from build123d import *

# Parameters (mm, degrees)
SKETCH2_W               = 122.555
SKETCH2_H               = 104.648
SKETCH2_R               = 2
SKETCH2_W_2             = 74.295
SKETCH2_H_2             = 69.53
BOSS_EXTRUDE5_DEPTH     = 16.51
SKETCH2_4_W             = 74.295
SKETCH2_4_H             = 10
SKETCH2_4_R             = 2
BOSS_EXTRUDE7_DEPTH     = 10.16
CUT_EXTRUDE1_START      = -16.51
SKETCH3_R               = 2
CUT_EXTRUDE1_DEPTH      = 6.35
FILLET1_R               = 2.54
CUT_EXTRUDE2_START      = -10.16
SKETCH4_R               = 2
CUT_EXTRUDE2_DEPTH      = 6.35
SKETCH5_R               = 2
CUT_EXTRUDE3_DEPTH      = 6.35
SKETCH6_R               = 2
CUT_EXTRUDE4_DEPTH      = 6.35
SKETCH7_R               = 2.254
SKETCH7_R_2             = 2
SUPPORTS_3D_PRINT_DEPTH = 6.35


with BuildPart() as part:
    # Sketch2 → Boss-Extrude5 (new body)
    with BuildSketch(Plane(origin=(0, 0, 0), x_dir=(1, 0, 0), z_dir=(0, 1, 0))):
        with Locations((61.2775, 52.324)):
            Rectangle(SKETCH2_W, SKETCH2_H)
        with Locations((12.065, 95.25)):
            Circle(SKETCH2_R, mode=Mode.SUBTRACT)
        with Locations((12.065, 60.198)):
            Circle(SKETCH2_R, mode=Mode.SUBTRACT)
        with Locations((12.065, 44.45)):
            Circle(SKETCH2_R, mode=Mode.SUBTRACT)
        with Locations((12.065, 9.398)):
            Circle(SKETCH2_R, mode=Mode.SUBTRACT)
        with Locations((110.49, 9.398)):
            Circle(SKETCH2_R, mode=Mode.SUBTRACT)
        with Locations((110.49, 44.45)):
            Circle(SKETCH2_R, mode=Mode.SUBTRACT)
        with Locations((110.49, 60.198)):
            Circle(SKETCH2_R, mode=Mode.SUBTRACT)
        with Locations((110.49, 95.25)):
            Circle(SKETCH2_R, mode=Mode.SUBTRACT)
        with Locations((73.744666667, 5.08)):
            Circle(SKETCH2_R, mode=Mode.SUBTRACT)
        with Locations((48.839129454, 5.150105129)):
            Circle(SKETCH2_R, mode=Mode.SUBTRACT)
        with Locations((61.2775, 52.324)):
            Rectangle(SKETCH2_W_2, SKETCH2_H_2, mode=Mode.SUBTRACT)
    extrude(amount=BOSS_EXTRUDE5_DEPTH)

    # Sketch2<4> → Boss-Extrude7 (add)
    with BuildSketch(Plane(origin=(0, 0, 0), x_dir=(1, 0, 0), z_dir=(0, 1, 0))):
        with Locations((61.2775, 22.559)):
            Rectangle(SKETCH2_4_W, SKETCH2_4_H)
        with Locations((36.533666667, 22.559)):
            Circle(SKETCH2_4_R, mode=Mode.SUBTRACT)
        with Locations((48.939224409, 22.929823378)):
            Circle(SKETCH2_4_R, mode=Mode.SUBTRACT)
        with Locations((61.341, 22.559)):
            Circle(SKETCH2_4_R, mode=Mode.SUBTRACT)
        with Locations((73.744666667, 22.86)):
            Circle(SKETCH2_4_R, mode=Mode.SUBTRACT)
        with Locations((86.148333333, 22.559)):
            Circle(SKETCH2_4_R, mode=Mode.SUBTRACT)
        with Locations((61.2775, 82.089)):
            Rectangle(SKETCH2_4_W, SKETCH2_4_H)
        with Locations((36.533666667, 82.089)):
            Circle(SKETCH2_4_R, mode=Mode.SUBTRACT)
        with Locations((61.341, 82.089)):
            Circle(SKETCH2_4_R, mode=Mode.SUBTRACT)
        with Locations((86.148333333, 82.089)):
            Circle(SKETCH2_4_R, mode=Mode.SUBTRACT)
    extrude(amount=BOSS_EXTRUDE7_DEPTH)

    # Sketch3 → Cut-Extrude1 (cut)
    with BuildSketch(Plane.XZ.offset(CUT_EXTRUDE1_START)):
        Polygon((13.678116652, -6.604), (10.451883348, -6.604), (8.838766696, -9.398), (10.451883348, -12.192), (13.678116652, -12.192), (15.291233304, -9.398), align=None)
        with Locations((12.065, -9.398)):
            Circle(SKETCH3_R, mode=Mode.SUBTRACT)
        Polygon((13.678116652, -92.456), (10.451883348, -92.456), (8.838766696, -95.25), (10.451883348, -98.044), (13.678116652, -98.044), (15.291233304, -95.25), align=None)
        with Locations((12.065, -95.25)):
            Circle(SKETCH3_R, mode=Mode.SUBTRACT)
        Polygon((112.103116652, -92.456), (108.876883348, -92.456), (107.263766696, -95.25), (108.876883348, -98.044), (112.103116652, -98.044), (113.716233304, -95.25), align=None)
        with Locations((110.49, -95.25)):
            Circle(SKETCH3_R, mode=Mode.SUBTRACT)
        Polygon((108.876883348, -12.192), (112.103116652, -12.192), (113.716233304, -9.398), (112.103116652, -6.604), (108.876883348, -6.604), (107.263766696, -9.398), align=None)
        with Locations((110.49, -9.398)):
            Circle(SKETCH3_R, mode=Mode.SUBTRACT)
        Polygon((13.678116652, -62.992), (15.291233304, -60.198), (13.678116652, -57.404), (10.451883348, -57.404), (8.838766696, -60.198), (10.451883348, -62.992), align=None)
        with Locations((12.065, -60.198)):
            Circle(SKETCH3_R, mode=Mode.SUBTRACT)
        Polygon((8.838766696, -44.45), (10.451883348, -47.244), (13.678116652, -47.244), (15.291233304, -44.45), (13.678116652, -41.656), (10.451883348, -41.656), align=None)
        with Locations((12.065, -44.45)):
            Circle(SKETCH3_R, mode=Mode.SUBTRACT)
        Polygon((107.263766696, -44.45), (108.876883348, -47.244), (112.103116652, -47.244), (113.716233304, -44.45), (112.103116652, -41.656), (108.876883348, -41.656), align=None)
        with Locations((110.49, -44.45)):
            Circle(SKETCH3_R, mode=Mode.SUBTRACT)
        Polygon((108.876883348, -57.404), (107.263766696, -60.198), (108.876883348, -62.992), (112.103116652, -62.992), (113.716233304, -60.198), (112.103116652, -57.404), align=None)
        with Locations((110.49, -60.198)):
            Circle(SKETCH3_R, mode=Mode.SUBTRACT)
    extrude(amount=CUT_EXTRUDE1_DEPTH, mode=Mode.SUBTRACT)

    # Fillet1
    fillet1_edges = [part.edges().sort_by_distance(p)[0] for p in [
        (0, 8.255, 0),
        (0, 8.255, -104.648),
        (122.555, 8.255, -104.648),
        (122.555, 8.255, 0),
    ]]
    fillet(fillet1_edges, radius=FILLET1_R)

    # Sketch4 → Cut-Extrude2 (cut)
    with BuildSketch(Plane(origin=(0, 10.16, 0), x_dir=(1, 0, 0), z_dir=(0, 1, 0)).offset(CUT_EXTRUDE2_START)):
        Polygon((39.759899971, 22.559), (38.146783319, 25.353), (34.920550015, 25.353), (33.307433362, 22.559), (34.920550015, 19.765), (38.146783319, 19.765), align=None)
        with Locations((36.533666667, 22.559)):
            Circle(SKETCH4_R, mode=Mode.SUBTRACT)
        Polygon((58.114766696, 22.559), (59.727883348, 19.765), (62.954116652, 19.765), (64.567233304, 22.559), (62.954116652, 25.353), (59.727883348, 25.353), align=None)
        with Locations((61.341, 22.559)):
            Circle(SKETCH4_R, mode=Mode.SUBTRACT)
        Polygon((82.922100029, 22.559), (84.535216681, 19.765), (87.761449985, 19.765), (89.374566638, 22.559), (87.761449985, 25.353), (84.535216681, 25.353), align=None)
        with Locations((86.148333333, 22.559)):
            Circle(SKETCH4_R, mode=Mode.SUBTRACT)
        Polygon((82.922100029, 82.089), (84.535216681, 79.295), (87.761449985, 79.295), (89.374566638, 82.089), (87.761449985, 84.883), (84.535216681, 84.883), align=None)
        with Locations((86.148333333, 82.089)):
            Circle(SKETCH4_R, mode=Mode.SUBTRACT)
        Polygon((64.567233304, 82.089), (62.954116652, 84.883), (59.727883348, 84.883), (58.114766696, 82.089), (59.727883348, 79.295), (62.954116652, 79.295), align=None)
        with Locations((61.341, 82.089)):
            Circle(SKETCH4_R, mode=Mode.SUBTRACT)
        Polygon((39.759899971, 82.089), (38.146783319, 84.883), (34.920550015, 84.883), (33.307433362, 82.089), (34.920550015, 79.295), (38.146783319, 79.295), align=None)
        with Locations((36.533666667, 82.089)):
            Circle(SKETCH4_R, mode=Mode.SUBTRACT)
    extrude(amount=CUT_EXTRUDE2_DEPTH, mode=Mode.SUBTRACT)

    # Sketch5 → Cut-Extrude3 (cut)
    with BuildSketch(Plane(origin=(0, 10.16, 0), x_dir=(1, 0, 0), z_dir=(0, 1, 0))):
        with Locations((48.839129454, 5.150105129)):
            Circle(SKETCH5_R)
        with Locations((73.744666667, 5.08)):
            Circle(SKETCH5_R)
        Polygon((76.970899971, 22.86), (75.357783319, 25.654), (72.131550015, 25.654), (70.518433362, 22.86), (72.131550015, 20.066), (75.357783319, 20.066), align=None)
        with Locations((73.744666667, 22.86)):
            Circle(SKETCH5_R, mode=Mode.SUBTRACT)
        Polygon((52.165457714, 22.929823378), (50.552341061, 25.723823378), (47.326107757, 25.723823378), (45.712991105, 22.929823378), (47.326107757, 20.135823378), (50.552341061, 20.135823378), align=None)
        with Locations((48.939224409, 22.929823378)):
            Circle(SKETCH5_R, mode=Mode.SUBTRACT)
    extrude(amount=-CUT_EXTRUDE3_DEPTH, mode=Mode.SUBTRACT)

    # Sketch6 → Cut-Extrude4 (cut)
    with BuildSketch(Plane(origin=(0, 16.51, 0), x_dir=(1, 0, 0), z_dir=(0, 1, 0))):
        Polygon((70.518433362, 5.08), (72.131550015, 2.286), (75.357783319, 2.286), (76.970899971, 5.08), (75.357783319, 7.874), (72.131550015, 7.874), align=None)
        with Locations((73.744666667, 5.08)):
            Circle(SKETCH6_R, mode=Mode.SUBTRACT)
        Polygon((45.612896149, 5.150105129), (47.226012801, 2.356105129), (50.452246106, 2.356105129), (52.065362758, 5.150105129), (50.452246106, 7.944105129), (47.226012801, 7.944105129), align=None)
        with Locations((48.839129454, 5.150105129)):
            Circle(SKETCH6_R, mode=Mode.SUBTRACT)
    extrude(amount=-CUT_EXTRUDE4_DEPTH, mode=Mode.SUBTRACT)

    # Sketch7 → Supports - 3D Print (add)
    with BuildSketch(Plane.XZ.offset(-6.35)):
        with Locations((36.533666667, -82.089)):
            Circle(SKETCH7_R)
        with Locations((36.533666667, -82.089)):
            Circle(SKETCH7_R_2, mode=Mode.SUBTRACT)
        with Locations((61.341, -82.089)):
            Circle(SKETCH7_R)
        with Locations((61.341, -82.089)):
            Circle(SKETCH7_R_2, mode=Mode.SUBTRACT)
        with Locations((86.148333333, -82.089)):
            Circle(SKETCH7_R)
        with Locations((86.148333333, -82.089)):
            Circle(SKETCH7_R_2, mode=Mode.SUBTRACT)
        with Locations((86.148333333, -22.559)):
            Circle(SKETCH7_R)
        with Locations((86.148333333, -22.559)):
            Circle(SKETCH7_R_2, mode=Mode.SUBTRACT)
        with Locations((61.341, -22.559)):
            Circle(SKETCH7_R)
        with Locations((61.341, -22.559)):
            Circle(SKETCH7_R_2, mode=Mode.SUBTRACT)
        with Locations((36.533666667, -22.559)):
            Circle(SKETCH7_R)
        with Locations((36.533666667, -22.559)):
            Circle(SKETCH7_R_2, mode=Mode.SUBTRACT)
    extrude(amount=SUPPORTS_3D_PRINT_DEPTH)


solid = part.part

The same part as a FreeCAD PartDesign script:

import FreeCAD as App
import Part
import Sketcher
Q = App.Units.Quantity


def edges_at(feature, points):
    """Names of the edges that pass closest to the given points."""
    edges = feature.Shape.Edges
    near = lambda p: min(range(len(edges)), key=lambda i: edges[i].distToShape(Part.Vertex(*p))[0])
    return sorted({f"Edge{near(p) + 1}" for p in points})


def add_polygon(sketch, points):
    """Adds a closed chain of lines whose ends are joined by coincident constraints."""
    first, n = sketch.GeometryCount, len(points)
    for a, b in zip(points, points[1:] + points[:1]):
        sketch.addGeometry(Part.LineSegment(App.Vector(*a, 0), App.Vector(*b, 0)), False)
    for i in range(n):
        sketch.addConstraint(Sketcher.Constraint("Coincident", first + i, 2, first + (i + 1) % n, 1))

doc = App.newDocument("Part")
params = doc.addObject("Spreadsheet::Sheet", "Params")
for row, (alias, value) in enumerate([
    ("sketch1_height", "4.12 in"),
    ("sketch1_width", "4.825 in"),
    ("sketch1_width2", "2.925 in"),
    ("pad1_length", "0.65 in"),
    ("sketch2_width", "2.925 in"),
    ("pad2_length", "0.4 in"),
    ("pocket1_length", "0.25 in"),
    ("fillet_radius", "0.1 in"),
    ("pocket2_length", "0.25 in"),
    ("pocket3_length", "0.25 in"),
    ("pocket4_length", "0.25 in"),
    ("pad3_length", "0.25 in"),
], start=1):
    params.set(f"A{row}", alias)
    params.set(f"B{row}", "=" + value)
    params.setAlias(f"B{row}", alias)

body = doc.addObject("PartDesign::Body", "Body")

sketch1 = doc.addObject("Sketcher::SketchObject", "Sketch")
body.addObject(sketch1)
sketch1.AttachmentSupport = (doc.XZ_Plane, [""])
sketch1.MapMode = "FlatFace"
add_polygon(sketch1, [(0, -104.6), (0, 0), (122.6, 0), (122.6, -104.6)])
sketch1.addGeometry(Part.Circle(App.Vector(12.1, -9.4, 0), App.Vector(0, 0, 1), 2), False)
sketch1.addGeometry(Part.Circle(App.Vector(48.8, -5.2, 0), App.Vector(0, 0, 1), 2), False)
sketch1.addGeometry(Part.Circle(App.Vector(12.1, -44.5, 0), App.Vector(0, 0, 1), 2), False)
sketch1.addGeometry(Part.Circle(App.Vector(73.7, -5.1, 0), App.Vector(0, 0, 1), 2), False)
sketch1.addGeometry(Part.Circle(App.Vector(110.5, -9.4, 0), App.Vector(0, 0, 1), 2), False)
sketch1.addGeometry(Part.Circle(App.Vector(110.5, -44.5, 0), App.Vector(0, 0, 1), 2), False)
sketch1.addGeometry(Part.Circle(App.Vector(12.1, -60.2, 0), App.Vector(0, 0, 1), 2), False)
sketch1.addGeometry(Part.Circle(App.Vector(12.1, -95.2, 0), App.Vector(0, 0, 1), 2), False)
add_polygon(sketch1, [(98.4, -17.6), (24.1, -17.6), (24.1, -87.1), (98.4, -87.1)])
sketch1.addGeometry(Part.Circle(App.Vector(110.5, -60.2, 0), App.Vector(0, 0, 1), 2), False)
sketch1.addGeometry(Part.Circle(App.Vector(110.5, -95.2, 0), App.Vector(0, 0, 1), 2), False)
sketch1.addConstraint([
    Sketcher.Constraint("Vertical", 0),
    Sketcher.Constraint("Horizontal", 1),
    Sketcher.Constraint("Vertical", 2),
    Sketcher.Constraint("Horizontal", 3),
    Sketcher.Constraint("Horizontal", 12),
    Sketcher.Constraint("Vertical", 13),
    Sketcher.Constraint("Horizontal", 14),
    Sketcher.Constraint("Vertical", 15),
    Sketcher.Constraint("Coincident", 0, 2, -1, 1),
    Sketcher.Constraint("Equal", 4, 5),
    Sketcher.Constraint("Equal", 5, 6),
    Sketcher.Constraint("Equal", 6, 7),
    Sketcher.Constraint("Equal", 7, 8),
    Sketcher.Constraint("Equal", 8, 9),
    Sketcher.Constraint("Equal", 9, 10),
    Sketcher.Constraint("Equal", 10, 11),
    Sketcher.Constraint("Equal", 11, 16),
    Sketcher.Constraint("Equal", 16, 17),
    Sketcher.Constraint("Horizontal", 4, 3, 8, 3),
    Sketcher.Constraint("Horizontal", 6, 3, 9, 3),
    Sketcher.Constraint("Horizontal", 10, 3, 16, 3),
    Sketcher.Constraint("Horizontal", 11, 3, 17, 3),
    Sketcher.Constraint("Vertical", 4, 3, 6, 3),
    Sketcher.Constraint("Vertical", 8, 3, 9, 3),
    Sketcher.Constraint("Vertical", 6, 3, 10, 3),
    Sketcher.Constraint("Vertical", 10, 3, 11, 3),
    Sketcher.Constraint("Vertical", 9, 3, 16, 3),
    Sketcher.Constraint("Vertical", 16, 3, 17, 3),
    Sketcher.Constraint("DistanceY", 10, 3, 4, 3, Q("2 in")),
    Sketcher.Constraint("DistanceY", 11, 3, 6, 3, Q("2 in")),
    Sketcher.Constraint("DistanceY", 0, 1, 0, 2, Q("4.12 in")),
    Sketcher.Constraint("DistanceY", 7, 3, -1, 1, Q("0.2 in")),
    Sketcher.Constraint("Diameter", 4, 4.0),
    Sketcher.Constraint("DistanceX", 1, 1, 1, 2, Q("4.825 in")),
    Sketcher.Constraint("DistanceX", 12, 2, 12, 1, Q("2.925 in")),
    Sketcher.Constraint("DistanceY", 4, 3, -1, 1, Q("0.37 in")),
    Sketcher.Constraint("DistanceY", 6, 3, -1, 1, Q("1.75 in")),
    Sketcher.Constraint("DistanceX", -1, 1, 8, 3, Q("4.35 in")),
    Sketcher.Constraint("DistanceX", -1, 1, 12, 2, Q("0.95 in")),
    Sketcher.Constraint("DistanceX", -1, 1, 4, 3, Q("0.475 in")),
    Sketcher.Constraint("DistanceY", 13, 2, 13, 1, 69.53),
    Sketcher.Constraint("DistanceY", 12, 2, -1, 1, 17.559),
    Sketcher.Constraint("DistanceX", -1, 1, 5, 3, 48.839129),
    Sketcher.Constraint("DistanceY", 5, 3, -1, 1, 5.150105),
    Sketcher.Constraint("DistanceX", -1, 1, 7, 3, 73.744667),
])
sketch1.setExpression("Constraints[38]", "Params.sketch1_height")
sketch1.setExpression("Constraints[41]", "Params.sketch1_width")
sketch1.setExpression("Constraints[42]", "Params.sketch1_width2")
pad1 = doc.addObject("PartDesign::Pad", "Pad")
body.addObject(pad1)
pad1.Profile = sketch1
pad1.setExpression("Length", "Params.pad1_length")
pad1.Reversed = True

sketch2 = doc.addObject("Sketcher::SketchObject", "Sketch001")
body.addObject(sketch2)
sketch2.AttachmentSupport = (doc.XZ_Plane, [""])
sketch2.MapMode = "FlatFace"
add_polygon(sketch2, [(24.1, -27.6), (24.1, -17.6), (98.4, -17.6), (98.4, -27.6)])
sketch2.addGeometry(Part.Circle(App.Vector(36.5, -22.6, 0), App.Vector(0, 0, 1), 2), False)
sketch2.addGeometry(Part.Circle(App.Vector(61.3, -22.6, 0), App.Vector(0, 0, 1), 2), False)
sketch2.addGeometry(Part.Circle(App.Vector(86.1, -22.6, 0), App.Vector(0, 0, 1), 2), False)
sketch2.addGeometry(Part.Circle(App.Vector(48.9, -22.9, 0), App.Vector(0, 0, 1), 2), False)
sketch2.addGeometry(Part.Circle(App.Vector(73.7, -22.9, 0), App.Vector(0, 0, 1), 2), False)
add_polygon(sketch2, [(24.1, -87.1), (24.1, -77.1), (98.4, -77.1), (98.4, -87.1)])
sketch2.addGeometry(Part.Circle(App.Vector(36.5, -82.1, 0), App.Vector(0, 0, 1), 2), False)
sketch2.addGeometry(Part.Circle(App.Vector(61.3, -82.1, 0), App.Vector(0, 0, 1), 2), False)
sketch2.addGeometry(Part.Circle(App.Vector(86.1, -82.1, 0), App.Vector(0, 0, 1), 2), False)
sketch2.addConstraint([
    Sketcher.Constraint("Vertical", 0),
    Sketcher.Constraint("Horizontal", 1),
    Sketcher.Constraint("Vertical", 2),
    Sketcher.Constraint("Horizontal", 3),
    Sketcher.Constraint("Vertical", 9),
    Sketcher.Constraint("Horizontal", 10),
    Sketcher.Constraint("Vertical", 11),
    Sketcher.Constraint("Horizontal", 12),
    Sketcher.Constraint("Equal", 4, 5),
    Sketcher.Constraint("Equal", 5, 6),
    Sketcher.Constraint("Equal", 6, 7),
    Sketcher.Constraint("Equal", 7, 8),
    Sketcher.Constraint("Equal", 8, 13),
    Sketcher.Constraint("Equal", 13, 14),
    Sketcher.Constraint("Equal", 14, 15),
    Sketcher.Constraint("Horizontal", 4, 3, 5, 3),
    Sketcher.Constraint("Horizontal", 5, 3, 6, 3),
    Sketcher.Constraint("Horizontal", 13, 3, 14, 3),
    Sketcher.Constraint("Horizontal", 14, 3, 15, 3),
    Sketcher.Constraint("Vertical", 4, 3, 13, 3),
    Sketcher.Constraint("Vertical", 5, 3, 14, 3),
    Sketcher.Constraint("Vertical", 6, 3, 15, 3),
    Sketcher.Constraint("Vertical", 3, 2, 9, 2),
    Sketcher.Constraint("Vertical", 2, 2, 10, 2),
    Sketcher.Constraint("Equal", 2, 9),
    Sketcher.Constraint("DistanceY", 8, 3, -1, 1, Q("0.9 in")),
    Sketcher.Constraint("Diameter", 4, 4.0),
    Sketcher.Constraint("DistanceX", 1, 1, 1, 2, Q("2.925 in")),
    Sketcher.Constraint("DistanceX", -1, 1, 0, 2, Q("0.95 in")),
    Sketcher.Constraint("DistanceX", 5, 3, 1, 2, Q("1.46 in")),
    Sketcher.Constraint("DistanceY", 9, 2, 3, 2, Q("1.95 in")),
    Sketcher.Constraint("DistanceY", 2, 2, -1, 1, Q("1.085 in")),
    Sketcher.Constraint("DistanceX", 4, 3, 8, 3, Q("1.465 in")),
    Sketcher.Constraint("DistanceY", 0, 1, 0, 2, 10.0),
    Sketcher.Constraint("DistanceY", 4, 3, -1, 1, 22.559),
    Sketcher.Constraint("DistanceY", 13, 3, -1, 1, 82.089),
    Sketcher.Constraint("DistanceX", 7, 3, 6, 3, 37.209109),
    Sketcher.Constraint("DistanceX", -1, 1, 4, 3, 36.533667),
    Sketcher.Constraint("DistanceX", -1, 1, 6, 3, 86.148333),
    Sketcher.Constraint("DistanceY", 7, 3, -1, 1, 22.929823),
])
sketch2.setExpression("Constraints[35]", "Params.sketch2_width")
pad2 = doc.addObject("PartDesign::Pad", "Pad001")
body.addObject(pad2)
pad2.Profile = sketch2
pad2.setExpression("Length", "Params.pad2_length")
pad2.Reversed = True

sketch3 = doc.addObject("Sketcher::SketchObject", "Sketch002")
body.addObject(sketch3)
sketch3.AttachmentSupport = (doc.XZ_Plane, [""])
sketch3.MapMode = "FlatFace"
sketch3.AttachmentOffset = App.Placement(App.Vector(0, 0, -0.65 * 25.4), App.Rotation())
add_polygon(sketch3, [(13.7, -6.6), (10.5, -6.6), (8.8, -9.4), (10.5, -12.2), (13.7, -12.2), (15.3, -9.4)])
sketch3.addGeometry(Part.Circle(App.Vector(12.1, -9.4, 0), App.Vector(0, 0, 1), 2), False)
add_polygon(sketch3, [(13.7, -92.5), (10.5, -92.5), (8.8, -95.2), (10.5, -98), (13.7, -98), (15.3, -95.2)])
sketch3.addGeometry(Part.Circle(App.Vector(12.1, -95.2, 0), App.Vector(0, 0, 1), 2), False)
add_polygon(sketch3, [(112.1, -92.5), (108.9, -92.5), (107.3, -95.2), (108.9, -98), (112.1, -98), (113.7, -95.2)])
sketch3.addGeometry(Part.Circle(App.Vector(110.5, -95.2, 0), App.Vector(0, 0, 1), 2), False)
add_polygon(sketch3, [(108.9, -12.2), (112.1, -12.2), (113.7, -9.4), (112.1, -6.6), (108.9, -6.6), (107.3, -9.4)])
sketch3.addGeometry(Part.Circle(App.Vector(110.5, -9.4, 0), App.Vector(0, 0, 1), 2), False)
add_polygon(sketch3, [(13.7, -63), (15.3, -60.2), (13.7, -57.4), (10.5, -57.4), (8.8, -60.2), (10.5, -63)])
sketch3.addGeometry(Part.Circle(App.Vector(12.1, -60.2, 0), App.Vector(0, 0, 1), 2), False)
add_polygon(sketch3, [(8.8, -44.5), (10.5, -47.2), (13.7, -47.2), (15.3, -44.5), (13.7, -41.7), (10.5, -41.7)])
sketch3.addGeometry(Part.Circle(App.Vector(12.1, -44.5, 0), App.Vector(0, 0, 1), 2), False)
add_polygon(sketch3, [(107.3, -44.5), (108.9, -47.2), (112.1, -47.2), (113.7, -44.5), (112.1, -41.7), (108.9, -41.7)])
sketch3.addGeometry(Part.Circle(App.Vector(110.5, -44.5, 0), App.Vector(0, 0, 1), 2), False)
add_polygon(sketch3, [(108.9, -57.4), (107.3, -60.2), (108.9, -63), (112.1, -63), (113.7, -60.2), (112.1, -57.4)])
sketch3.addGeometry(Part.Circle(App.Vector(110.5, -60.2, 0), App.Vector(0, 0, 1), 2), False)
sketch3.addConstraint([
    Sketcher.Constraint("Horizontal", 0),
    Sketcher.Constraint("Horizontal", 3),
    Sketcher.Constraint("Horizontal", 7),
    Sketcher.Constraint("Horizontal", 10),
    Sketcher.Constraint("Horizontal", 14),
    Sketcher.Constraint("Horizontal", 17),
    Sketcher.Constraint("Horizontal", 21),
    Sketcher.Constraint("Horizontal", 24),
    Sketcher.Constraint("Horizontal", 30),
    Sketcher.Constraint("Horizontal", 33),
    Sketcher.Constraint("Horizontal", 36),
    Sketcher.Constraint("Horizontal", 39),
    Sketcher.Constraint("Horizontal", 43),
    Sketcher.Constraint("Horizontal", 46),
    Sketcher.Constraint("Horizontal", 51),
    Sketcher.Constraint("Horizontal", 54),
    Sketcher.Constraint("Equal", 6, 13),
    Sketcher.Constraint("Equal", 13, 20),
    Sketcher.Constraint("Equal", 20, 27),
    Sketcher.Constraint("Equal", 27, 34),
    Sketcher.Constraint("Equal", 34, 41),
    Sketcher.Constraint("Equal", 41, 48),
    Sketcher.Constraint("Equal", 48, 55),
    Sketcher.Constraint("Parallel", 1, 4),
    Sketcher.Constraint("Parallel", 2, 5),
    Sketcher.Constraint("Parallel", 4, 8),
    Sketcher.Constraint("Parallel", 5, 9),
    Sketcher.Constraint("Parallel", 8, 11),
    Sketcher.Constraint("Parallel", 9, 12),
    Sketcher.Constraint("Parallel", 11, 15),
    Sketcher.Constraint("Parallel", 12, 16),
    Sketcher.Constraint("Parallel", 15, 18),
    Sketcher.Constraint("Parallel", 16, 19),
    Sketcher.Constraint("Parallel", 18, 22),
    Sketcher.Constraint("Parallel", 19, 23),
    Sketcher.Constraint("Parallel", 22, 25),
    Sketcher.Constraint("Parallel", 23, 26),
    Sketcher.Constraint("Parallel", 25, 28),
    Sketcher.Constraint("Parallel", 26, 29),
    Sketcher.Constraint("Parallel", 28, 31),
    Sketcher.Constraint("Parallel", 29, 32),
    Sketcher.Constraint("Parallel", 32, 35),
    Sketcher.Constraint("Parallel", 31, 37),
    Sketcher.Constraint("Parallel", 35, 38),
    Sketcher.Constraint("Parallel", 37, 40),
    Sketcher.Constraint("Parallel", 38, 42),
    Sketcher.Constraint("Parallel", 40, 44),
    Sketcher.Constraint("Parallel", 42, 45),
    Sketcher.Constraint("Parallel", 44, 47),
    Sketcher.Constraint("Parallel", 47, 49),
    Sketcher.Constraint("Parallel", 45, 50),
    Sketcher.Constraint("Parallel", 49, 52),
    Sketcher.Constraint("Parallel", 50, 53),
    Sketcher.Constraint("Horizontal", 13, 3, 20, 3),
    Sketcher.Constraint("Horizontal", 6, 3, 27, 3),
    Sketcher.Constraint("Horizontal", 41, 3, 48, 3),
    Sketcher.Constraint("Horizontal", 34, 3, 55, 3),
    Sketcher.Constraint("Horizontal", 27, 3, 1, 2),
    Sketcher.Constraint("Horizontal", 1, 2, 4, 2),
    Sketcher.Constraint("Horizontal", 20, 3, 8, 2),
    Sketcher.Constraint("Horizontal", 8, 2, 11, 2),
    Sketcher.Constraint("Horizontal", 12, 2, 14, 2),
    Sketcher.Constraint("Horizontal", 11, 2, 15, 2),
    Sketcher.Constraint("Horizontal", 10, 2, 16, 2),
    Sketcher.Constraint("Horizontal", 15, 2, 18, 2),
    Sketcher.Constraint("Horizontal", 3, 2, 21, 2),
    Sketcher.Constraint("Horizontal", 4, 2, 22, 2),
    Sketcher.Constraint("Horizontal", 5, 2, 23, 2),
    Sketcher.Constraint("Horizontal", 22, 2, 25, 2),
    Sketcher.Constraint("Horizontal", 55, 3, 28, 2),
    Sketcher.Constraint("Horizontal", 28, 2, 31, 2),
    Sketcher.Constraint("Horizontal", 48, 3, 37, 2),
    Sketcher.Constraint("Horizontal", 37, 2, 40, 2),
    Sketcher.Constraint("Horizontal", 36, 2, 42, 2),
    Sketcher.Constraint("Horizontal", 40, 2, 44, 2),
    Sketcher.Constraint("Horizontal", 39, 2, 45, 2),
    Sketcher.Constraint("Horizontal", 44, 2, 47, 2),
    Sketcher.Constraint("Horizontal", 31, 2, 49, 2),
    Sketcher.Constraint("Horizontal", 33, 2, 50, 2),
    Sketcher.Constraint("Horizontal", 49, 2, 52, 2),
    Sketcher.Constraint("Horizontal", 30, 2, 53, 2),
    Sketcher.Constraint("Vertical", 6, 3, 13, 3),
    Sketcher.Constraint("Vertical", 20, 3, 27, 3),
    Sketcher.Constraint("Vertical", 13, 3, 34, 3),
    Sketcher.Constraint("Vertical", 34, 3, 41, 3),
    Sketcher.Constraint("Vertical", 27, 3, 48, 3),
    Sketcher.Constraint("Vertical", 48, 3, 55, 3),
    Sketcher.Constraint("Vertical", 0, 2, 2, 2),
    Sketcher.Constraint("Vertical", 3, 2, 5, 2),
    Sketcher.Constraint("Vertical", 2, 2, 7, 2),
    Sketcher.Constraint("Vertical", 1, 2, 8, 2),
    Sketcher.Constraint("Vertical", 7, 2, 9, 2),
    Sketcher.Constraint("Vertical", 5, 2, 10, 2),
    Sketcher.Constraint("Vertical", 19, 2, 21, 2),
    Sketcher.Constraint("Vertical", 16, 2, 24, 2),
    Sketcher.Constraint("Vertical", 11, 2, 28, 2),
    Sketcher.Constraint("Vertical", 12, 2, 29, 2),
    Sketcher.Constraint("Vertical", 9, 2, 30, 2),
    Sketcher.Constraint("Vertical", 30, 2, 32, 2),
    Sketcher.Constraint("Vertical", 32, 2, 35, 2),
    Sketcher.Constraint("Vertical", 33, 2, 36, 2),
    Sketcher.Constraint("Vertical", 28, 2, 37, 2),
    Sketcher.Constraint("Vertical", 36, 2, 38, 2),
    Sketcher.Constraint("Vertical", 26, 2, 42, 2),
    Sketcher.Constraint("Vertical", 23, 2, 43, 2),
    Sketcher.Constraint("Vertical", 47, 2, 49, 2),
    Sketcher.Constraint("Vertical", 45, 2, 51, 2),
    Sketcher.Constraint("Equal", 10, 14),
    Sketcher.Constraint("Angle", 1, Q("-120 deg")),
    Sketcher.Constraint("DistanceY", 34, 3, 6, 3, Q("2 in")),
    Sketcher.Constraint("DistanceY", 13, 3, 41, 3, Q("2 in")),
    Sketcher.Constraint("DistanceY", 30, 2, 35, 2, Q("0.4 in")),
    Sketcher.Constraint("Diameter", 6, 4.0),
    Sketcher.Constraint("DistanceY", 6, 3, -1, 1, Q("0.37 in")),
    Sketcher.Constraint("DistanceY", 13, 3, -1, 1, Q("3.75 in")),
    Sketcher.Constraint("DistanceX", -1, 1, 20, 3, Q("4.35 in")),
    Sketcher.Constraint("DistanceX", -1, 1, 6, 3, Q("0.475 in")),
    Sketcher.Constraint("DistanceX", 0, 2, 0, 1, 3.226233),
    Sketcher.Constraint("DistanceX", 11, 2, 14, 2, 93.58565),
    Sketcher.Constraint("DistanceX", -1, 1, 0, 2, 10.451883),
])
pocket1 = doc.addObject("PartDesign::Pocket", "Pocket")
body.addObject(pocket1)
pocket1.Profile = sketch3
pocket1.setExpression("Length", "Params.pocket1_length")
pocket1.Reversed = True
doc.recompute()

fillet = doc.addObject("PartDesign::Fillet", "Fillet")
body.addObject(fillet)
fillet.Base = (pocket1, edges_at(pocket1, [
    (0, 8.255, 0),
    (0, 8.255, -104.648),
    (122.555, 8.255, -104.648),
    (122.555, 8.255, 0),
]))
fillet.setExpression("Radius", "Params.fillet_radius")

sketch4 = doc.addObject("Sketcher::SketchObject", "Sketch003")
body.addObject(sketch4)
sketch4.AttachmentSupport = (doc.XZ_Plane, [""])
sketch4.MapMode = "FlatFace"
add_polygon(sketch4, [(39.8, -22.6), (38.1, -25.4), (34.9, -25.4), (33.3, -22.6), (34.9, -19.8), (38.1, -19.8)])
sketch4.addGeometry(Part.Circle(App.Vector(36.5, -22.6, 0), App.Vector(0, 0, 1), 2), False)
add_polygon(sketch4, [(58.1, -22.6), (59.7, -19.8), (63, -19.8), (64.6, -22.6), (63, -25.4), (59.7, -25.4)])
sketch4.addGeometry(Part.Circle(App.Vector(61.3, -22.6, 0), App.Vector(0, 0, 1), 2), False)
add_polygon(sketch4, [(82.9, -22.6), (84.5, -19.8), (87.8, -19.8), (89.4, -22.6), (87.8, -25.4), (84.5, -25.4)])
sketch4.addGeometry(Part.Circle(App.Vector(86.1, -22.6, 0), App.Vector(0, 0, 1), 2), False)
add_polygon(sketch4, [(82.9, -82.1), (84.5, -79.3), (87.8, -79.3), (89.4, -82.1), (87.8, -84.9), (84.5, -84.9)])
sketch4.addGeometry(Part.Circle(App.Vector(86.1, -82.1, 0), App.Vector(0, 0, 1), 2), False)
add_polygon(sketch4, [(64.6, -82.1), (63, -84.9), (59.7, -84.9), (58.1, -82.1), (59.7, -79.3), (63, -79.3)])
sketch4.addGeometry(Part.Circle(App.Vector(61.3, -82.1, 0), App.Vector(0, 0, 1), 2), False)
add_polygon(sketch4, [(39.8, -82.1), (38.1, -84.9), (34.9, -84.9), (33.3, -82.1), (34.9, -79.3), (38.1, -79.3)])
sketch4.addGeometry(Part.Circle(App.Vector(36.5, -82.1, 0), App.Vector(0, 0, 1), 2), False)
sketch4.addConstraint([
    Sketcher.Constraint("Horizontal", 1),
    Sketcher.Constraint("Horizontal", 4),
    Sketcher.Constraint("Horizontal", 8),
    Sketcher.Constraint("Horizontal", 11),
    Sketcher.Constraint("Horizontal", 15),
    Sketcher.Constraint("Horizontal", 18),
    Sketcher.Constraint("Horizontal", 22),
    Sketcher.Constraint("Horizontal", 25),
    Sketcher.Constraint("Horizontal", 29),
    Sketcher.Constraint("Horizontal", 32),
    Sketcher.Constraint("Horizontal", 36),
    Sketcher.Constraint("Horizontal", 39),
    Sketcher.Constraint("Equal", 6, 13),
    Sketcher.Constraint("Equal", 13, 20),
    Sketcher.Constraint("Equal", 20, 27),
    Sketcher.Constraint("Equal", 27, 34),
    Sketcher.Constraint("Equal", 34, 41),
    Sketcher.Constraint("Parallel", 0, 3),
    Sketcher.Constraint("Parallel", 2, 5),
    Sketcher.Constraint("Parallel", 3, 7),
    Sketcher.Constraint("Parallel", 5, 9),
    Sketcher.Constraint("Parallel", 7, 10),
    Sketcher.Constraint("Parallel", 9, 12),
    Sketcher.Constraint("Parallel", 10, 14),
    Sketcher.Constraint("Parallel", 12, 16),
    Sketcher.Constraint("Parallel", 14, 17),
    Sketcher.Constraint("Parallel", 16, 19),
    Sketcher.Constraint("Parallel", 17, 21),
    Sketcher.Constraint("Parallel", 19, 23),
    Sketcher.Constraint("Parallel", 21, 24),
    Sketcher.Constraint("Parallel", 23, 26),
    Sketcher.Constraint("Parallel", 24, 28),
    Sketcher.Constraint("Parallel", 26, 30),
    Sketcher.Constraint("Parallel", 28, 31),
    Sketcher.Constraint("Parallel", 30, 33),
    Sketcher.Constraint("Parallel", 31, 35),
    Sketcher.Constraint("Parallel", 33, 37),
    Sketcher.Constraint("Parallel", 35, 38),
    Sketcher.Constraint("Parallel", 37, 40),
    Sketcher.Constraint("Horizontal", 6, 3, 13, 3),
    Sketcher.Constraint("Horizontal", 13, 3, 20, 3),
    Sketcher.Constraint("Horizontal", 27, 3, 34, 3),
    Sketcher.Constraint("Horizontal", 34, 3, 41, 3),
    Sketcher.Constraint("Horizontal", 20, 3, 2, 2),
    Sketcher.Constraint("Horizontal", 2, 2, 5, 2),
    Sketcher.Constraint("Horizontal", 4, 2, 7, 2),
    Sketcher.Constraint("Horizontal", 5, 2, 9, 2),
    Sketcher.Constraint("Horizontal", 1, 2, 10, 2),
    Sketcher.Constraint("Horizontal", 9, 2, 12, 2),
    Sketcher.Constraint("Horizontal", 8, 2, 14, 2),
    Sketcher.Constraint("Horizontal", 12, 2, 16, 2),
    Sketcher.Constraint("Horizontal", 11, 2, 17, 2),
    Sketcher.Constraint("Horizontal", 16, 2, 19, 2),
    Sketcher.Constraint("Horizontal", 41, 3, 23, 2),
    Sketcher.Constraint("Horizontal", 23, 2, 26, 2),
    Sketcher.Constraint("Horizontal", 25, 2, 28, 2),
    Sketcher.Constraint("Horizontal", 26, 2, 30, 2),
    Sketcher.Constraint("Horizontal", 22, 2, 31, 2),
    Sketcher.Constraint("Horizontal", 30, 2, 33, 2),
    Sketcher.Constraint("Horizontal", 29, 2, 35, 2),
    Sketcher.Constraint("Horizontal", 33, 2, 37, 2),
    Sketcher.Constraint("Horizontal", 32, 2, 38, 2),
    Sketcher.Constraint("Horizontal", 37, 2, 40, 2),
    Sketcher.Constraint("Vertical", 20, 3, 27, 3),
    Sketcher.Constraint("Vertical", 13, 3, 34, 3),
    Sketcher.Constraint("Vertical", 6, 3, 41, 3),
    Sketcher.Constraint("Vertical", 1, 2, 3, 2),
    Sketcher.Constraint("Vertical", 0, 2, 4, 2),
    Sketcher.Constraint("Vertical", 18, 2, 21, 2),
    Sketcher.Constraint("Vertical", 17, 2, 22, 2),
    Sketcher.Constraint("Vertical", 16, 2, 23, 2),
    Sketcher.Constraint("Vertical", 22, 2, 24, 2),
    Sketcher.Constraint("Vertical", 10, 2, 28, 2),
    Sketcher.Constraint("Vertical", 11, 2, 29, 2),
    Sketcher.Constraint("Vertical", 4, 2, 35, 2),
    Sketcher.Constraint("Vertical", 3, 2, 36, 2),
    Sketcher.Constraint("Equal", 4, 8),
    Sketcher.Constraint("Equal", 11, 15),
    Sketcher.Constraint("Angle", 0, Q("-120 deg")),
    Sketcher.Constraint("Diameter", 6, 4.0),
    Sketcher.Constraint("DistanceY", 0, 2, 6, 3, Q("0.11 in")),
    Sketcher.Constraint("DistanceX", -1, 1, 13, 3, Q("2.415 in")),
    Sketcher.Constraint("DistanceY", 6, 3, -1, 1, 22.559),
    Sketcher.Constraint("DistanceY", 27, 3, -1, 1, 82.089),
    Sketcher.Constraint("DistanceX", -1, 1, 5, 2, 39.7599),
    Sketcher.Constraint("DistanceX", -1, 1, 19, 2, 82.9221),
    Sketcher.Constraint("DistanceX", 2, 2, 20, 3, 52.8409),
    Sketcher.Constraint("DistanceX", 4, 2, 7, 2, 21.5811),
    Sketcher.Constraint("DistanceX", 9, 2, 20, 3, 21.5811),
    Sketcher.Constraint("DistanceX", 41, 3, 23, 2, 52.8409),
])
pocket2 = doc.addObject("PartDesign::Pocket", "Pocket001")
body.addObject(pocket2)
pocket2.Profile = sketch4
pocket2.setExpression("Length", "Params.pocket2_length")

sketch5 = doc.addObject("Sketcher::SketchObject", "Sketch004")
body.addObject(sketch5)
sketch5.AttachmentSupport = (doc.XZ_Plane, [""])
sketch5.MapMode = "FlatFace"
sketch5.AttachmentOffset = App.Placement(App.Vector(0, 0, -0.4 * 25.4), App.Rotation())
sketch5.addGeometry(Part.Circle(App.Vector(48.8, -5.2, 0), App.Vector(0, 0, 1), 2), False)
sketch5.addGeometry(Part.Circle(App.Vector(73.7, -5.1, 0), App.Vector(0, 0, 1), 2), False)
add_polygon(sketch5, [(77, -22.9), (75.4, -25.7), (72.1, -25.7), (70.5, -22.9), (72.1, -20.1), (75.4, -20.1)])
sketch5.addGeometry(Part.Circle(App.Vector(73.7, -22.9, 0), App.Vector(0, 0, 1), 2), False)
add_polygon(sketch5, [(52.2, -22.9), (50.6, -25.7), (47.3, -25.7), (45.7, -22.9), (47.3, -20.1), (50.6, -20.1)])
sketch5.addGeometry(Part.Circle(App.Vector(48.9, -22.9, 0), App.Vector(0, 0, 1), 2), False)
sketch5.addConstraint([
    Sketcher.Constraint("Horizontal", 3),
    Sketcher.Constraint("Horizontal", 6),
    Sketcher.Constraint("Horizontal", 10),
    Sketcher.Constraint("Horizontal", 13),
    Sketcher.Constraint("Equal", 0, 1),
    Sketcher.Constraint("Equal", 1, 8),
    Sketcher.Constraint("Equal", 8, 15),
    Sketcher.Constraint("Parallel", 2, 5),
    Sketcher.Constraint("Parallel", 4, 7),
    Sketcher.Constraint("Parallel", 5, 9),
    Sketcher.Constraint("Parallel", 7, 11),
    Sketcher.Constraint("Parallel", 9, 12),
    Sketcher.Constraint("Parallel", 11, 14),
    Sketcher.Constraint("Horizontal", 8, 3, 4, 2),
    Sketcher.Constraint("Horizontal", 4, 2, 7, 2),
    Sketcher.Constraint("Horizontal", 15, 3, 11, 2),
    Sketcher.Constraint("Horizontal", 11, 2, 14, 2),
    Sketcher.Constraint("Vertical", 1, 3, 8, 3),
    Sketcher.Constraint("Vertical", 3, 2, 5, 2),
    Sketcher.Constraint("Vertical", 2, 2, 6, 2),
    Sketcher.Constraint("Vertical", 10, 2, 12, 2),
    Sketcher.Constraint("Equal", 6, 10),
    Sketcher.Constraint("Equal", 7, 9),
    Sketcher.Constraint("Angle", 2, Q("-120 deg")),
    Sketcher.Constraint("DistanceY", 1, 3, -1, 1, Q("0.2 in")),
    Sketcher.Constraint("DistanceY", 8, 3, -1, 1, Q("0.9 in")),
    Sketcher.Constraint("Diameter", 0, 4.0),
    Sketcher.Constraint("DistanceY", 2, 2, -1, 1, Q("1.01 in")),
    Sketcher.Constraint("DistanceX", -1, 1, 7, 2, 76.9709),
    Sketcher.Constraint("DistanceX", 3, 2, 3, 1, 3.226233),
    Sketcher.Constraint("DistanceX", -1, 1, 0, 3, 48.839129),
    Sketcher.Constraint("DistanceX", -1, 1, 9, 2, 50.552341),
    Sketcher.Constraint("DistanceY", 15, 3, 0, 3, 17.779718),
    Sketcher.Constraint("DistanceX", 15, 3, 2, 2, 26.418559),
    Sketcher.Constraint("DistanceY", 0, 3, -1, 1, 5.150105),
    Sketcher.Constraint("DistanceX", -1, 1, 1, 3, 73.744667),
])
pocket3 = doc.addObject("PartDesign::Pocket", "Pocket002")
body.addObject(pocket3)
pocket3.Profile = sketch5
pocket3.setExpression("Length", "Params.pocket3_length")
pocket3.Reversed = True

sketch6 = doc.addObject("Sketcher::SketchObject", "Sketch005")
body.addObject(sketch6)
sketch6.AttachmentSupport = (doc.XZ_Plane, [""])
sketch6.MapMode = "FlatFace"
sketch6.AttachmentOffset = App.Placement(App.Vector(0, 0, -0.65 * 25.4), App.Rotation())
add_polygon(sketch6, [(70.5, -5.1), (72.1, -2.3), (75.4, -2.3), (77, -5.1), (75.4, -7.9), (72.1, -7.9)])
sketch6.addGeometry(Part.Circle(App.Vector(73.7, -5.1, 0), App.Vector(0, 0, 1), 2), False)
add_polygon(sketch6, [(45.6, -5.2), (47.2, -2.4), (50.5, -2.4), (52.1, -5.2), (50.5, -7.9), (47.2, -7.9)])
sketch6.addGeometry(Part.Circle(App.Vector(48.8, -5.2, 0), App.Vector(0, 0, 1), 2), False)
sketch6.addConstraint([
    Sketcher.Constraint("Horizontal", 1),
    Sketcher.Constraint("Horizontal", 4),
    Sketcher.Constraint("Horizontal", 8),
    Sketcher.Constraint("Horizontal", 11),
    Sketcher.Constraint("Equal", 6, 13),
    Sketcher.Constraint("Parallel", 0, 3),
    Sketcher.Constraint("Parallel", 2, 5),
    Sketcher.Constraint("Parallel", 3, 7),
    Sketcher.Constraint("Parallel", 5, 9),
    Sketcher.Constraint("Parallel", 7, 10),
    Sketcher.Constraint("Parallel", 9, 12),
    Sketcher.Constraint("Horizontal", 6, 3, 2, 2),
    Sketcher.Constraint("Horizontal", 2, 2, 5, 2),
    Sketcher.Constraint("Horizontal", 13, 3, 9, 2),
    Sketcher.Constraint("Horizontal", 9, 2, 12, 2),
    Sketcher.Constraint("Vertical", 1, 2, 3, 2),
    Sketcher.Constraint("Vertical", 0, 2, 4, 2),
    Sketcher.Constraint("Vertical", 8, 2, 10, 2),
    Sketcher.Constraint("Equal", 4, 8),
    Sketcher.Constraint("Equal", 5, 7),
    Sketcher.Constraint("Angle", 0, Q("60 deg")),
    Sketcher.Constraint("DistanceY", 6, 3, -1, 1, Q("0.2 in")),
    Sketcher.Constraint("Diameter", 6, 4.0),
    Sketcher.Constraint("DistanceY", 0, 2, -1, 1, Q("0.09 in")),
    Sketcher.Constraint("DistanceX", -1, 1, 2, 2, 76.9709),
    Sketcher.Constraint("DistanceX", 1, 1, 1, 2, 3.226233),
    Sketcher.Constraint("DistanceX", -1, 1, 13, 3, 48.839129),
    Sketcher.Constraint("DistanceX", 7, 2, 5, 2, 23.292421),
    Sketcher.Constraint("DistanceX", -1, 1, 6, 3, 73.744667),
    Sketcher.Constraint("DistanceY", 13, 3, -1, 1, 5.150105),
])
pocket4 = doc.addObject("PartDesign::Pocket", "Pocket003")
body.addObject(pocket4)
pocket4.Profile = sketch6
pocket4.setExpression("Length", "Params.pocket4_length")
pocket4.Reversed = True

sketch7 = doc.addObject("Sketcher::SketchObject", "Sketch006")
body.addObject(sketch7)
sketch7.AttachmentSupport = (doc.XZ_Plane, [""])
sketch7.MapMode = "FlatFace"
sketch7.AttachmentOffset = App.Placement(App.Vector(0, 0, -0.25 * 25.4), App.Rotation())
sketch7.addGeometry([
    Part.Circle(App.Vector(36.5, -82.1, 0), App.Vector(0, 0, 1), 2.3),
    Part.Circle(App.Vector(36.5, -82.1, 0), App.Vector(0, 0, 1), 2),
    Part.Circle(App.Vector(61.3, -82.1, 0), App.Vector(0, 0, 1), 2.3),
    Part.Circle(App.Vector(61.3, -82.1, 0), App.Vector(0, 0, 1), 2),
    Part.Circle(App.Vector(86.1, -82.1, 0), App.Vector(0, 0, 1), 2.3),
    Part.Circle(App.Vector(86.1, -82.1, 0), App.Vector(0, 0, 1), 2),
    Part.Circle(App.Vector(86.1, -22.6, 0), App.Vector(0, 0, 1), 2.3),
    Part.Circle(App.Vector(86.1, -22.6, 0), App.Vector(0, 0, 1), 2),
    Part.Circle(App.Vector(61.3, -22.6, 0), App.Vector(0, 0, 1), 2.3),
    Part.Circle(App.Vector(61.3, -22.6, 0), App.Vector(0, 0, 1), 2),
    Part.Circle(App.Vector(36.5, -22.6, 0), App.Vector(0, 0, 1), 2.3),
    Part.Circle(App.Vector(36.5, -22.6, 0), App.Vector(0, 0, 1), 2),
], False)
sketch7.addConstraint([
    Sketcher.Constraint("Coincident", 1, 3, 0, 3),
    Sketcher.Constraint("Coincident", 3, 3, 2, 3),
    Sketcher.Constraint("Coincident", 5, 3, 4, 3),
    Sketcher.Constraint("Coincident", 7, 3, 6, 3),
    Sketcher.Constraint("Coincident", 9, 3, 8, 3),
    Sketcher.Constraint("Coincident", 11, 3, 10, 3),
    Sketcher.Constraint("Equal", 0, 2),
    Sketcher.Constraint("Equal", 1, 3),
    Sketcher.Constraint("Equal", 2, 4),
    Sketcher.Constraint("Equal", 3, 5),
    Sketcher.Constraint("Equal", 4, 6),
    Sketcher.Constraint("Equal", 5, 7),
    Sketcher.Constraint("Equal", 6, 8),
    Sketcher.Constraint("Equal", 7, 9),
    Sketcher.Constraint("Equal", 8, 10),
    Sketcher.Constraint("Equal", 9, 11),
    Sketcher.Constraint("Horizontal", 1, 3, 2, 3),
    Sketcher.Constraint("Horizontal", 3, 3, 4, 3),
    Sketcher.Constraint("Horizontal", 7, 3, 8, 3),
    Sketcher.Constraint("Horizontal", 9, 3, 10, 3),
    Sketcher.Constraint("Vertical", 5, 3, 6, 3),
    Sketcher.Constraint("Vertical", 3, 3, 8, 3),
    Sketcher.Constraint("Vertical", 1, 3, 10, 3),
    Sketcher.Constraint("Diameter", 0, 4.508),
    Sketcher.Constraint("Diameter", 1, 4.0),
    Sketcher.Constraint("DistanceX", -1, 1, 2, 3, Q("2.415 in")),
    Sketcher.Constraint("DistanceY", 0, 3, -1, 1, 82.089),
    Sketcher.Constraint("DistanceY", 6, 3, -1, 1, 22.559),
    Sketcher.Constraint("DistanceX", -1, 1, 0, 3, 36.533667),
    Sketcher.Constraint("DistanceX", -1, 1, 4, 3, 86.148333),
])
pad3 = doc.addObject("PartDesign::Pad", "Pad002")
body.addObject(pad3)
pad3.Profile = sketch7
pad3.setExpression("Length", "Params.pad3_length")

doc.recompute()
